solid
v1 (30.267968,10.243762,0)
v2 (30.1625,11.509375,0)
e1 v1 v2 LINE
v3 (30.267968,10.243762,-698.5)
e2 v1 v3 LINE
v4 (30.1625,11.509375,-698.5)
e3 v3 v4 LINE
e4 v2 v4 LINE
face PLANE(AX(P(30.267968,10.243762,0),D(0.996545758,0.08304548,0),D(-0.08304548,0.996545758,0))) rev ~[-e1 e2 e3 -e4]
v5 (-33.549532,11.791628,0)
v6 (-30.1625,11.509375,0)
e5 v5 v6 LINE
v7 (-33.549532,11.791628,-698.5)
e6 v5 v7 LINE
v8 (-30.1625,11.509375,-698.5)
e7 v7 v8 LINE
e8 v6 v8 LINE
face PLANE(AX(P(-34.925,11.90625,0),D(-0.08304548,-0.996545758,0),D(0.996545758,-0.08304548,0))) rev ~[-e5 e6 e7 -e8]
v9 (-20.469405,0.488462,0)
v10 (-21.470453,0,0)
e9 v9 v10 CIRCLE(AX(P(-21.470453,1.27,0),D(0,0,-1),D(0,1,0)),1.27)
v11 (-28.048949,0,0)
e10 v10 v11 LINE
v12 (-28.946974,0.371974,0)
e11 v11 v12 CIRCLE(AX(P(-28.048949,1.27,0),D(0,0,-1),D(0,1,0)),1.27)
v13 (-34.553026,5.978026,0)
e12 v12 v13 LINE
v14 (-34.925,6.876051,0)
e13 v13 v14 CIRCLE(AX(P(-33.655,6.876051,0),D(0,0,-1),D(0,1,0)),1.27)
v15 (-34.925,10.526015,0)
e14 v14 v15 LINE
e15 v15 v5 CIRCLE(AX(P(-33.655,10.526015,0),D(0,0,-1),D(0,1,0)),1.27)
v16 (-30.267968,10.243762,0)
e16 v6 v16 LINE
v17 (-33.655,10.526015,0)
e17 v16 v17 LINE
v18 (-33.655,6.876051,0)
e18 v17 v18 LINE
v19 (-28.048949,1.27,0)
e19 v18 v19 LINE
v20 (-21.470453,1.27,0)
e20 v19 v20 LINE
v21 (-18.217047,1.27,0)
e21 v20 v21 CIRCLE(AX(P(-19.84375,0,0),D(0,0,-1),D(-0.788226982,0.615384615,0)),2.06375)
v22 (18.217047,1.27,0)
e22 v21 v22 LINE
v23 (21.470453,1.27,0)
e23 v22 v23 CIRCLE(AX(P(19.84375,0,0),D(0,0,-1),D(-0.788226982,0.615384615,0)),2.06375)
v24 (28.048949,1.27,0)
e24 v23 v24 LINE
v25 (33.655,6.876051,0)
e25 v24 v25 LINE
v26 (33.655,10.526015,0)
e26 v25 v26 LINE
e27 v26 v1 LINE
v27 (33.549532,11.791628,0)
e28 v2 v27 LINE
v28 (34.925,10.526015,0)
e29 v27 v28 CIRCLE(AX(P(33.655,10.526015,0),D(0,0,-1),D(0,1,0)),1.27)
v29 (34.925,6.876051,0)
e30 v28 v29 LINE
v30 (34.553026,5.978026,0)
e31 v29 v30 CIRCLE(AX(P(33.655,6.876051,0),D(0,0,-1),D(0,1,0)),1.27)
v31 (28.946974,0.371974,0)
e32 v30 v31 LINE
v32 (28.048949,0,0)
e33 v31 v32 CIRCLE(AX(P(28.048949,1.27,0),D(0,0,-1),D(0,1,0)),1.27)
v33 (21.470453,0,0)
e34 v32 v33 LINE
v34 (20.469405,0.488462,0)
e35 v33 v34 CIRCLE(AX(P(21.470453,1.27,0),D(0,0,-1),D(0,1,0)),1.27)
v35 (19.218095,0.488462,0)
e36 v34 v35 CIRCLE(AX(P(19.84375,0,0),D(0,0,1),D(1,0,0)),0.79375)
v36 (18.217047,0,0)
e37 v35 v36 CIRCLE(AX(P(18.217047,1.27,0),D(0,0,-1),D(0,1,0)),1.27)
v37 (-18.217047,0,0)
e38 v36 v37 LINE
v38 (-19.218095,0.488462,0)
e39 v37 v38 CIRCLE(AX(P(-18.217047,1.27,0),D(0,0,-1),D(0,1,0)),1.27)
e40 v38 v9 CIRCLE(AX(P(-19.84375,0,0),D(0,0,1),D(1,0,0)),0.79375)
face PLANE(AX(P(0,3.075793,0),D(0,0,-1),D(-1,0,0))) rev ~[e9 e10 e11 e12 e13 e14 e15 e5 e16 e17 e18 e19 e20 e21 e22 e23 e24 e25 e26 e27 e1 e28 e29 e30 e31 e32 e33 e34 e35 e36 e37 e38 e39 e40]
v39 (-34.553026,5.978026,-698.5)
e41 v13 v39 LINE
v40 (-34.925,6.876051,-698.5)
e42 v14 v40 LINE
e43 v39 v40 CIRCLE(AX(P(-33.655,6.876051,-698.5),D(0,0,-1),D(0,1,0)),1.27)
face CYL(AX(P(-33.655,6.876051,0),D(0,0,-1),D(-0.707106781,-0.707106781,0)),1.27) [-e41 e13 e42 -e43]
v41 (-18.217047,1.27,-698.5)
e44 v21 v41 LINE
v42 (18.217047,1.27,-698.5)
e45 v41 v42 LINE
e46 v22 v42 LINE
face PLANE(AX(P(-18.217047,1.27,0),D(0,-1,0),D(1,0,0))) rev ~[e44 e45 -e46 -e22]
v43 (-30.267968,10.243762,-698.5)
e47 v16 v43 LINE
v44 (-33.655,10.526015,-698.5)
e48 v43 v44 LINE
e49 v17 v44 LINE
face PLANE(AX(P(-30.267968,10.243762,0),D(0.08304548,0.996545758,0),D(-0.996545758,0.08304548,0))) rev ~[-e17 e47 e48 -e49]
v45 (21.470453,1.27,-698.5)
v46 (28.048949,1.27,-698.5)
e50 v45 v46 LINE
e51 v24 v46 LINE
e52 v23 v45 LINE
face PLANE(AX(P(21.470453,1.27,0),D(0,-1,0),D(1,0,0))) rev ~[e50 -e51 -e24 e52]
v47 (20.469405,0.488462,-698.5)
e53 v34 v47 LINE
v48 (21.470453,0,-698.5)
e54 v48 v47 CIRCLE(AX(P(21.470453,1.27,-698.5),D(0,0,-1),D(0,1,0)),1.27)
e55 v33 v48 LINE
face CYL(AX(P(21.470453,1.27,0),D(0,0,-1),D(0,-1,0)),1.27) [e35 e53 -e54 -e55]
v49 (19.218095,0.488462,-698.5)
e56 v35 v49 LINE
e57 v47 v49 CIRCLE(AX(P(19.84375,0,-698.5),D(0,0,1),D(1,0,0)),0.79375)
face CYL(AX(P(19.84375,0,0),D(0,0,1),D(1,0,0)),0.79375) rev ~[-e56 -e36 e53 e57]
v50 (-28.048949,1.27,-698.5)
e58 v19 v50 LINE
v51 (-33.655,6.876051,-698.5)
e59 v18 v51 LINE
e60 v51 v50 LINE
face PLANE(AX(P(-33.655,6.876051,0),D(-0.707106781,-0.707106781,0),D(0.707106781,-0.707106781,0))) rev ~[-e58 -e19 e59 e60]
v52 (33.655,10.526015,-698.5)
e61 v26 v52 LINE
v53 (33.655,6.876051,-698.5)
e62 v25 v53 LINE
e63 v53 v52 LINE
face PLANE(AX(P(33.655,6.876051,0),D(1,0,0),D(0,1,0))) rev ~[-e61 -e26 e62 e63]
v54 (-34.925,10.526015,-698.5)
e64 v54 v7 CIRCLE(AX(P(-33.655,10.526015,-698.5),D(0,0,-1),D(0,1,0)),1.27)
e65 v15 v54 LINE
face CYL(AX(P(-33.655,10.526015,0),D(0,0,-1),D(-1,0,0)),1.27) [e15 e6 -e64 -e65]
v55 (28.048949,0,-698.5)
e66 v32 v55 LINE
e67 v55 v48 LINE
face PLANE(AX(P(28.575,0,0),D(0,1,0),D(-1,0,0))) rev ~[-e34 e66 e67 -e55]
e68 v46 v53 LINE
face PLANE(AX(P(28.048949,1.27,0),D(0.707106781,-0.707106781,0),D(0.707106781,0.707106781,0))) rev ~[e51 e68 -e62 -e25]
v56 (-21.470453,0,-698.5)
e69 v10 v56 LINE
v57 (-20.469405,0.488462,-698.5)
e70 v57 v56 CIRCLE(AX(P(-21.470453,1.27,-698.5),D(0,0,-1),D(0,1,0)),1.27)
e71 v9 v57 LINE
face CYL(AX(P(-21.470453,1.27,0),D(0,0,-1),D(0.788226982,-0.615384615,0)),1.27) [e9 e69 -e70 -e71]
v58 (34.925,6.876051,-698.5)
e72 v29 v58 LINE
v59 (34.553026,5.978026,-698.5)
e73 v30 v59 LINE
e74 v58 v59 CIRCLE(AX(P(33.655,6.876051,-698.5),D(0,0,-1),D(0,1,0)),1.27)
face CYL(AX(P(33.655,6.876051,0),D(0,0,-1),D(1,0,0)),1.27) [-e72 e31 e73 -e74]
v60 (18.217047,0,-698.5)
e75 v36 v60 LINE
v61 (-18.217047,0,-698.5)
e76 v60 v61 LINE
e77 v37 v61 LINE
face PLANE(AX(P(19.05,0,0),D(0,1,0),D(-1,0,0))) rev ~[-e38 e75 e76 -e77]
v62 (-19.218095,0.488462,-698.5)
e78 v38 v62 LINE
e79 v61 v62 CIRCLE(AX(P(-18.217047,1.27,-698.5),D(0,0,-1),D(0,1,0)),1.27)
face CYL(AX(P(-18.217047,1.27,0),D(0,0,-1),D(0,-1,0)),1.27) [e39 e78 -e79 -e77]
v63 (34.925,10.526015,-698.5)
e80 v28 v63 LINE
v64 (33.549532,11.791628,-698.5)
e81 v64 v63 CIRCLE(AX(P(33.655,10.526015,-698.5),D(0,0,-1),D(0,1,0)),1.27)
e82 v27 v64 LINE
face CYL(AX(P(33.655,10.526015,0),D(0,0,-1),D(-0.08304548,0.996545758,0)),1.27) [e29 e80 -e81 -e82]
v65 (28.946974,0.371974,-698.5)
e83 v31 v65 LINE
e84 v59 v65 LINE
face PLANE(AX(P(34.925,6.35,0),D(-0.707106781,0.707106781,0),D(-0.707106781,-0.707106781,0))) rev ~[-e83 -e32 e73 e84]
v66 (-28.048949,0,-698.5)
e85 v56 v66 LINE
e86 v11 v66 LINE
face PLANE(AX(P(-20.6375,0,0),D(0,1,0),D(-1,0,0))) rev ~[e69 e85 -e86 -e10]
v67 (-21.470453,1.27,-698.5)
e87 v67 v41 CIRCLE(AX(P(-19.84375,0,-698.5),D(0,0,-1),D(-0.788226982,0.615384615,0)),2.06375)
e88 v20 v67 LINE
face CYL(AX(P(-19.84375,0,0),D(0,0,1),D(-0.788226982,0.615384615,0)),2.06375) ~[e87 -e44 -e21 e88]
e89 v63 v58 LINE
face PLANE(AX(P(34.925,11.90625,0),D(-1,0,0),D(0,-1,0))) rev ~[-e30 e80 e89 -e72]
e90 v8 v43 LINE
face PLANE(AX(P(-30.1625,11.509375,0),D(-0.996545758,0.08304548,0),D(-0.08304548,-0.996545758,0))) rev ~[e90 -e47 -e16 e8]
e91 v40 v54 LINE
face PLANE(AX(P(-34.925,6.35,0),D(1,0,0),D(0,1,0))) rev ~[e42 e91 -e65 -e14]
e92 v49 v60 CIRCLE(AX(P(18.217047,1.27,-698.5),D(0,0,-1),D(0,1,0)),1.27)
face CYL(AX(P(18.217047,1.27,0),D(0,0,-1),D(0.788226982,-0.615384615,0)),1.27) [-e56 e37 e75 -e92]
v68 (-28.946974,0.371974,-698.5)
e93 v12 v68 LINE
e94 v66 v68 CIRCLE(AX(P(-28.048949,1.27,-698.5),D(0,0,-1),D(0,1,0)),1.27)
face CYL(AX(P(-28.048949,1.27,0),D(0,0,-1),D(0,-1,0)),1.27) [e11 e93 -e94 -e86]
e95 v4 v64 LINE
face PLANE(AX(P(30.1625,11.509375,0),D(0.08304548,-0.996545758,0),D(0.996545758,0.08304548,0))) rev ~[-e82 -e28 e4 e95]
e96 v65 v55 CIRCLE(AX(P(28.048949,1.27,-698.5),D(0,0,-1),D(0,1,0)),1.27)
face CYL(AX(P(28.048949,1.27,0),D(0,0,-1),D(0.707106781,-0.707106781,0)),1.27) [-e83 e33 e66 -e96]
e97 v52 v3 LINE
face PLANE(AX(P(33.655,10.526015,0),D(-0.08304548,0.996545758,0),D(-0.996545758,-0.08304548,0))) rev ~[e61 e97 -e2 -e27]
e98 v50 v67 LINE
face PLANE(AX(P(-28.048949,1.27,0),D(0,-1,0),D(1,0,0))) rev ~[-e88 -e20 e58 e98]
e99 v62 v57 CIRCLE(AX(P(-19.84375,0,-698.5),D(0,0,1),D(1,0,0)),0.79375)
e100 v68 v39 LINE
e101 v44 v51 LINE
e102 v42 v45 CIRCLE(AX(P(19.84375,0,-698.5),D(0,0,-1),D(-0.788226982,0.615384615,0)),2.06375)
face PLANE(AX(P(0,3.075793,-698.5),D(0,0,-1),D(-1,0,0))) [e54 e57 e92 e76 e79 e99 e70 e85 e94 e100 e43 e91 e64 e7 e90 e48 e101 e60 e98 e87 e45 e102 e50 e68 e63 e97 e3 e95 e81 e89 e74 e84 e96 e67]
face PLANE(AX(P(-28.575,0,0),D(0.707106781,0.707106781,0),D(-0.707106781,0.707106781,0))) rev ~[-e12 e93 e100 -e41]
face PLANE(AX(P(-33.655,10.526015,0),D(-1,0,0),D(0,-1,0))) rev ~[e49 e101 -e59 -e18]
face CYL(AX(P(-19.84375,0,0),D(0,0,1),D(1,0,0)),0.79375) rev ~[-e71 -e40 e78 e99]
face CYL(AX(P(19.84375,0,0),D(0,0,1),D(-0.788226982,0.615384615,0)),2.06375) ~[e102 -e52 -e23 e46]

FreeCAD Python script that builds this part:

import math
import FreeCAD as App
import Part
import Sketcher
Q = App.Units.Quantity


def edges_at(feature, points):
    """Names of the edges that pass closest to the given points."""
    edges = feature.Shape.Edges
    near = lambda p: min(range(len(edges)), key=lambda i: edges[i].distToShape(Part.Vertex(*p))[0])
    return sorted({f"Edge{near(p) + 1}" for p in points})

doc = App.newDocument("Part")
body = doc.addObject("PartDesign::Body", "Body")

sketch1 = body.newObject("Sketcher::SketchObject", "Sketch")
sketch1.AttachmentSupport = (doc.getObject("XY_Plane"), [""])
sketch1.MapMode = "FlatFace"
sketch1.addGeometry([
    Part.LineSegment(App.Vector(34.9, 11.9, 0), App.Vector(30.2, 11.5, 0)),
    Part.LineSegment(App.Vector(30.2, 11.5, 0), App.Vector(30.3, 10.2, 0)),
    Part.LineSegment(App.Vector(30.3, 10.2, 0), App.Vector(33.7, 10.5, 0)),
    Part.LineSegment(App.Vector(33.7, 10.5, 0), App.Vector(33.7, 6.9, 0)),
    Part.LineSegment(App.Vector(33.7, 6.9, 0), App.Vector(28, 1.3, 0)),
    Part.LineSegment(App.Vector(28, 1.3, 0), App.Vector(21.5, 1.3, 0)),
    Part.ArcOfCircle(Part.Circle(App.Vector(19.8, 0, 0), App.Vector(0, 0, 1), 2.1), math.radians(38), math.radians(142)),
    Part.LineSegment(App.Vector(18.2, 1.3, 0), App.Vector(-18.2, 1.3, 0)),
    Part.ArcOfCircle(Part.Circle(App.Vector(-19.8, 0, 0), App.Vector(0, 0, 1), 2.1), math.radians(38), math.radians(142)),
    Part.LineSegment(App.Vector(-21.5, 1.3, 0), App.Vector(-28, 1.3, 0)),
    Part.LineSegment(App.Vector(-28, 1.3, 0), App.Vector(-33.7, 6.9, 0)),
    Part.LineSegment(App.Vector(-33.7, 6.9, 0), App.Vector(-33.7, 10.5, 0)),
    Part.LineSegment(App.Vector(-33.7, 10.5, 0), App.Vector(-30.3, 10.2, 0)),
    Part.LineSegment(App.Vector(-30.3, 10.2, 0), App.Vector(-30.2, 11.5, 0)),
    Part.LineSegment(App.Vector(-30.2, 11.5, 0), App.Vector(-34.9, 11.9, 0)),
    Part.LineSegment(App.Vector(-34.9, 11.9, 0), App.Vector(-34.9, 6.3, 0)),
    Part.LineSegment(App.Vector(-34.9, 6.3, 0), App.Vector(-28.6, 0, 0)),
    Part.LineSegment(App.Vector(-28.6, 0, 0), App.Vector(-20.6, 0, 0)),
    Part.ArcOfCircle(Part.Circle(App.Vector(-19.8, 0, 0), App.Vector(0, 0, 1), 0.8), math.radians(0), math.radians(180)),
    Part.LineSegment(App.Vector(-19.1, 0, 0), App.Vector(19.1, 0, 0)),
    Part.ArcOfCircle(Part.Circle(App.Vector(19.8, 0, 0), App.Vector(0, 0, 1), 0.8), math.radians(0), math.radians(180)),
    Part.LineSegment(App.Vector(20.6, 0, 0), App.Vector(28.6, 0, 0)),
    Part.LineSegment(App.Vector(28.6, 0, 0), App.Vector(34.9, 6.3, 0)),
    Part.LineSegment(App.Vector(34.9, 6.3, 0), App.Vector(34.9, 11.9, 0)),
], False)
sketch1.addConstraint([
    Sketcher.Constraint("Coincident", 0, 2, 1, 1),
    Sketcher.Constraint("Coincident", 1, 2, 2, 1),
    Sketcher.Constraint("Coincident", 2, 2, 3, 1),
    Sketcher.Constraint("Coincident", 3, 2, 4, 1),
    Sketcher.Constraint("Coincident", 4, 2, 5, 1),
    Sketcher.Constraint("Coincident", 5, 2, 6, 1),
    Sketcher.Constraint("Coincident", 6, 2, 7, 1),
    Sketcher.Constraint("Coincident", 7, 2, 8, 1),
    Sketcher.Constraint("Coincident", 8, 2, 9, 1),
    Sketcher.Constraint("Coincident", 9, 2, 10, 1),
    Sketcher.Constraint("Coincident", 10, 2, 11, 1),
    Sketcher.Constraint("Coincident", 11, 2, 12, 1),
    Sketcher.Constraint("Coincident", 12, 2, 13, 1),
    Sketcher.Constraint("Coincident", 13, 2, 14, 1),
    Sketcher.Constraint("Coincident", 14, 2, 15, 1),
    Sketcher.Constraint("Coincident", 15, 2, 16, 1),
    Sketcher.Constraint("Coincident", 16, 2, 17, 1),
    Sketcher.Constraint("Coincident", 17, 2, 18, 2),
    Sketcher.Constraint("Coincident", 18, 1, 19, 1),
    Sketcher.Constraint("Coincident", 19, 2, 20, 2),
    Sketcher.Constraint("Coincident", 20, 1, 21, 1),
    Sketcher.Constraint("Coincident", 21, 2, 22, 1),
    Sketcher.Constraint("Coincident", 22, 2, 23, 1),
    Sketcher.Constraint("Coincident", 23, 2, 0, 1),
    Sketcher.Constraint("Vertical", 3),
    Sketcher.Constraint("Horizontal", 5),
    Sketcher.Constraint("Horizontal", 7),
    Sketcher.Constraint("Horizontal", 9),
    Sketcher.Constraint("Vertical", 11),
    Sketcher.Constraint("Vertical", 15),
    Sketcher.Constraint("Horizontal", 17),
    Sketcher.Constraint("Horizontal", 19),
    Sketcher.Constraint("Horizontal", 21),
    Sketcher.Constraint("Vertical", 23),
    Sketcher.Constraint("Coincident", 18, 3, 8, 3),
    Sketcher.Constraint("Coincident", 20, 3, 6, 3),
    Sketcher.Constraint("Equal", 6, 8),
    Sketcher.Constraint("Equal", 18, 20),
    Sketcher.Constraint("Symmetric", 6, 3, 8, 3, -1, 1),
    Sketcher.Constraint("Symmetric", 16, 2, 21, 2, -1, 1),
    Sketcher.Constraint("Symmetric", 5, 2, 8, 2, -2),
    Sketcher.Constraint("Symmetric", 3, 2, 10, 2, -2),
    Sketcher.Constraint("Symmetric", 1, 2, 12, 2, -2),
    Sketcher.Constraint("Symmetric", 0, 2, 13, 2, -2),
    Sketcher.Constraint("Symmetric", 15, 2, 22, 2, -2),
    Sketcher.Constraint("PointOnObject", 16, 2, -1),
    Sketcher.Constraint("PointOnObject", 18, 1, -1),
    Sketcher.Constraint("Perpendicular", 0, 1),
    Sketcher.Constraint("Perpendicular", 1, 2),
    Sketcher.Constraint("Perpendicular", 4, 10),
    Sketcher.Constraint("Perpendicular", 12, 13),
    Sketcher.Constraint("Perpendicular", 13, 14),
    Sketcher.Constraint("Parallel", 10, 16),
    Sketcher.Constraint("Perpendicular", 16, 22),
    Sketcher.Constraint("Horizontal", 5, 2, 6, 2),
    Sketcher.Constraint("DistanceX", 19, 1, 19, 2, Q("1.5 in")),
    Sketcher.Constraint("Radius", 18, Q("0.03125 in")),
    Sketcher.Constraint("DistanceX", 10, 2, 16, 2, Q("0.2 in")),
    Sketcher.Constraint("DistanceY", 4, 2, 22, 2, Q("0.2 in")),
    Sketcher.Constraint("Distance", 1, Q("0.05 in")),
    Sketcher.Constraint("DistanceX", 17, 1, 17, 2, Q("0.3125 in")),
    Sketcher.Constraint("DistanceY", 15, 2, 15, 1, Q("0.21875 in")),
    Sketcher.Constraint("DistanceY", -1, 1, 4, 2, Q("0.05 in")),
    Sketcher.Constraint("DistanceX", -1, 1, 0, 2, Q("1.1875 in")),
    Sketcher.Constraint("DistanceY", -1, 1, 0, 2, Q("0.453125 in")),
    Sketcher.Constraint("Radius", 6, 2.06375),
    Sketcher.Constraint("DistanceX", 6, 3, 4, 2, 8.205199),
])
pad1 = body.newObject("PartDesign::Pad", "Pad")
pad1.Profile = sketch1
pad1.Length = Q("27.5 in")
pad1.Reversed = True
doc.recompute()

fillet = body.newObject("PartDesign::Fillet", "Fillet")
fillet.Base = (pad1, edges_at(pad1, [
    (34.925, 11.906, -349.25),
    (34.925, 6.35, -349.25),
    (28.575, 0, -349.25),
    (20.637, 0, -349.25),
    (19.05, 0, -349.25),
    (-19.05, 0, -349.25),
    (-20.637, 0, -349.25),
    (-28.575, 0, -349.25),
    (-34.925, 6.35, -349.25),
    (-34.925, 11.906, -349.25),
]))
fillet.Radius = Q("0.05 in")

doc.recompute()
